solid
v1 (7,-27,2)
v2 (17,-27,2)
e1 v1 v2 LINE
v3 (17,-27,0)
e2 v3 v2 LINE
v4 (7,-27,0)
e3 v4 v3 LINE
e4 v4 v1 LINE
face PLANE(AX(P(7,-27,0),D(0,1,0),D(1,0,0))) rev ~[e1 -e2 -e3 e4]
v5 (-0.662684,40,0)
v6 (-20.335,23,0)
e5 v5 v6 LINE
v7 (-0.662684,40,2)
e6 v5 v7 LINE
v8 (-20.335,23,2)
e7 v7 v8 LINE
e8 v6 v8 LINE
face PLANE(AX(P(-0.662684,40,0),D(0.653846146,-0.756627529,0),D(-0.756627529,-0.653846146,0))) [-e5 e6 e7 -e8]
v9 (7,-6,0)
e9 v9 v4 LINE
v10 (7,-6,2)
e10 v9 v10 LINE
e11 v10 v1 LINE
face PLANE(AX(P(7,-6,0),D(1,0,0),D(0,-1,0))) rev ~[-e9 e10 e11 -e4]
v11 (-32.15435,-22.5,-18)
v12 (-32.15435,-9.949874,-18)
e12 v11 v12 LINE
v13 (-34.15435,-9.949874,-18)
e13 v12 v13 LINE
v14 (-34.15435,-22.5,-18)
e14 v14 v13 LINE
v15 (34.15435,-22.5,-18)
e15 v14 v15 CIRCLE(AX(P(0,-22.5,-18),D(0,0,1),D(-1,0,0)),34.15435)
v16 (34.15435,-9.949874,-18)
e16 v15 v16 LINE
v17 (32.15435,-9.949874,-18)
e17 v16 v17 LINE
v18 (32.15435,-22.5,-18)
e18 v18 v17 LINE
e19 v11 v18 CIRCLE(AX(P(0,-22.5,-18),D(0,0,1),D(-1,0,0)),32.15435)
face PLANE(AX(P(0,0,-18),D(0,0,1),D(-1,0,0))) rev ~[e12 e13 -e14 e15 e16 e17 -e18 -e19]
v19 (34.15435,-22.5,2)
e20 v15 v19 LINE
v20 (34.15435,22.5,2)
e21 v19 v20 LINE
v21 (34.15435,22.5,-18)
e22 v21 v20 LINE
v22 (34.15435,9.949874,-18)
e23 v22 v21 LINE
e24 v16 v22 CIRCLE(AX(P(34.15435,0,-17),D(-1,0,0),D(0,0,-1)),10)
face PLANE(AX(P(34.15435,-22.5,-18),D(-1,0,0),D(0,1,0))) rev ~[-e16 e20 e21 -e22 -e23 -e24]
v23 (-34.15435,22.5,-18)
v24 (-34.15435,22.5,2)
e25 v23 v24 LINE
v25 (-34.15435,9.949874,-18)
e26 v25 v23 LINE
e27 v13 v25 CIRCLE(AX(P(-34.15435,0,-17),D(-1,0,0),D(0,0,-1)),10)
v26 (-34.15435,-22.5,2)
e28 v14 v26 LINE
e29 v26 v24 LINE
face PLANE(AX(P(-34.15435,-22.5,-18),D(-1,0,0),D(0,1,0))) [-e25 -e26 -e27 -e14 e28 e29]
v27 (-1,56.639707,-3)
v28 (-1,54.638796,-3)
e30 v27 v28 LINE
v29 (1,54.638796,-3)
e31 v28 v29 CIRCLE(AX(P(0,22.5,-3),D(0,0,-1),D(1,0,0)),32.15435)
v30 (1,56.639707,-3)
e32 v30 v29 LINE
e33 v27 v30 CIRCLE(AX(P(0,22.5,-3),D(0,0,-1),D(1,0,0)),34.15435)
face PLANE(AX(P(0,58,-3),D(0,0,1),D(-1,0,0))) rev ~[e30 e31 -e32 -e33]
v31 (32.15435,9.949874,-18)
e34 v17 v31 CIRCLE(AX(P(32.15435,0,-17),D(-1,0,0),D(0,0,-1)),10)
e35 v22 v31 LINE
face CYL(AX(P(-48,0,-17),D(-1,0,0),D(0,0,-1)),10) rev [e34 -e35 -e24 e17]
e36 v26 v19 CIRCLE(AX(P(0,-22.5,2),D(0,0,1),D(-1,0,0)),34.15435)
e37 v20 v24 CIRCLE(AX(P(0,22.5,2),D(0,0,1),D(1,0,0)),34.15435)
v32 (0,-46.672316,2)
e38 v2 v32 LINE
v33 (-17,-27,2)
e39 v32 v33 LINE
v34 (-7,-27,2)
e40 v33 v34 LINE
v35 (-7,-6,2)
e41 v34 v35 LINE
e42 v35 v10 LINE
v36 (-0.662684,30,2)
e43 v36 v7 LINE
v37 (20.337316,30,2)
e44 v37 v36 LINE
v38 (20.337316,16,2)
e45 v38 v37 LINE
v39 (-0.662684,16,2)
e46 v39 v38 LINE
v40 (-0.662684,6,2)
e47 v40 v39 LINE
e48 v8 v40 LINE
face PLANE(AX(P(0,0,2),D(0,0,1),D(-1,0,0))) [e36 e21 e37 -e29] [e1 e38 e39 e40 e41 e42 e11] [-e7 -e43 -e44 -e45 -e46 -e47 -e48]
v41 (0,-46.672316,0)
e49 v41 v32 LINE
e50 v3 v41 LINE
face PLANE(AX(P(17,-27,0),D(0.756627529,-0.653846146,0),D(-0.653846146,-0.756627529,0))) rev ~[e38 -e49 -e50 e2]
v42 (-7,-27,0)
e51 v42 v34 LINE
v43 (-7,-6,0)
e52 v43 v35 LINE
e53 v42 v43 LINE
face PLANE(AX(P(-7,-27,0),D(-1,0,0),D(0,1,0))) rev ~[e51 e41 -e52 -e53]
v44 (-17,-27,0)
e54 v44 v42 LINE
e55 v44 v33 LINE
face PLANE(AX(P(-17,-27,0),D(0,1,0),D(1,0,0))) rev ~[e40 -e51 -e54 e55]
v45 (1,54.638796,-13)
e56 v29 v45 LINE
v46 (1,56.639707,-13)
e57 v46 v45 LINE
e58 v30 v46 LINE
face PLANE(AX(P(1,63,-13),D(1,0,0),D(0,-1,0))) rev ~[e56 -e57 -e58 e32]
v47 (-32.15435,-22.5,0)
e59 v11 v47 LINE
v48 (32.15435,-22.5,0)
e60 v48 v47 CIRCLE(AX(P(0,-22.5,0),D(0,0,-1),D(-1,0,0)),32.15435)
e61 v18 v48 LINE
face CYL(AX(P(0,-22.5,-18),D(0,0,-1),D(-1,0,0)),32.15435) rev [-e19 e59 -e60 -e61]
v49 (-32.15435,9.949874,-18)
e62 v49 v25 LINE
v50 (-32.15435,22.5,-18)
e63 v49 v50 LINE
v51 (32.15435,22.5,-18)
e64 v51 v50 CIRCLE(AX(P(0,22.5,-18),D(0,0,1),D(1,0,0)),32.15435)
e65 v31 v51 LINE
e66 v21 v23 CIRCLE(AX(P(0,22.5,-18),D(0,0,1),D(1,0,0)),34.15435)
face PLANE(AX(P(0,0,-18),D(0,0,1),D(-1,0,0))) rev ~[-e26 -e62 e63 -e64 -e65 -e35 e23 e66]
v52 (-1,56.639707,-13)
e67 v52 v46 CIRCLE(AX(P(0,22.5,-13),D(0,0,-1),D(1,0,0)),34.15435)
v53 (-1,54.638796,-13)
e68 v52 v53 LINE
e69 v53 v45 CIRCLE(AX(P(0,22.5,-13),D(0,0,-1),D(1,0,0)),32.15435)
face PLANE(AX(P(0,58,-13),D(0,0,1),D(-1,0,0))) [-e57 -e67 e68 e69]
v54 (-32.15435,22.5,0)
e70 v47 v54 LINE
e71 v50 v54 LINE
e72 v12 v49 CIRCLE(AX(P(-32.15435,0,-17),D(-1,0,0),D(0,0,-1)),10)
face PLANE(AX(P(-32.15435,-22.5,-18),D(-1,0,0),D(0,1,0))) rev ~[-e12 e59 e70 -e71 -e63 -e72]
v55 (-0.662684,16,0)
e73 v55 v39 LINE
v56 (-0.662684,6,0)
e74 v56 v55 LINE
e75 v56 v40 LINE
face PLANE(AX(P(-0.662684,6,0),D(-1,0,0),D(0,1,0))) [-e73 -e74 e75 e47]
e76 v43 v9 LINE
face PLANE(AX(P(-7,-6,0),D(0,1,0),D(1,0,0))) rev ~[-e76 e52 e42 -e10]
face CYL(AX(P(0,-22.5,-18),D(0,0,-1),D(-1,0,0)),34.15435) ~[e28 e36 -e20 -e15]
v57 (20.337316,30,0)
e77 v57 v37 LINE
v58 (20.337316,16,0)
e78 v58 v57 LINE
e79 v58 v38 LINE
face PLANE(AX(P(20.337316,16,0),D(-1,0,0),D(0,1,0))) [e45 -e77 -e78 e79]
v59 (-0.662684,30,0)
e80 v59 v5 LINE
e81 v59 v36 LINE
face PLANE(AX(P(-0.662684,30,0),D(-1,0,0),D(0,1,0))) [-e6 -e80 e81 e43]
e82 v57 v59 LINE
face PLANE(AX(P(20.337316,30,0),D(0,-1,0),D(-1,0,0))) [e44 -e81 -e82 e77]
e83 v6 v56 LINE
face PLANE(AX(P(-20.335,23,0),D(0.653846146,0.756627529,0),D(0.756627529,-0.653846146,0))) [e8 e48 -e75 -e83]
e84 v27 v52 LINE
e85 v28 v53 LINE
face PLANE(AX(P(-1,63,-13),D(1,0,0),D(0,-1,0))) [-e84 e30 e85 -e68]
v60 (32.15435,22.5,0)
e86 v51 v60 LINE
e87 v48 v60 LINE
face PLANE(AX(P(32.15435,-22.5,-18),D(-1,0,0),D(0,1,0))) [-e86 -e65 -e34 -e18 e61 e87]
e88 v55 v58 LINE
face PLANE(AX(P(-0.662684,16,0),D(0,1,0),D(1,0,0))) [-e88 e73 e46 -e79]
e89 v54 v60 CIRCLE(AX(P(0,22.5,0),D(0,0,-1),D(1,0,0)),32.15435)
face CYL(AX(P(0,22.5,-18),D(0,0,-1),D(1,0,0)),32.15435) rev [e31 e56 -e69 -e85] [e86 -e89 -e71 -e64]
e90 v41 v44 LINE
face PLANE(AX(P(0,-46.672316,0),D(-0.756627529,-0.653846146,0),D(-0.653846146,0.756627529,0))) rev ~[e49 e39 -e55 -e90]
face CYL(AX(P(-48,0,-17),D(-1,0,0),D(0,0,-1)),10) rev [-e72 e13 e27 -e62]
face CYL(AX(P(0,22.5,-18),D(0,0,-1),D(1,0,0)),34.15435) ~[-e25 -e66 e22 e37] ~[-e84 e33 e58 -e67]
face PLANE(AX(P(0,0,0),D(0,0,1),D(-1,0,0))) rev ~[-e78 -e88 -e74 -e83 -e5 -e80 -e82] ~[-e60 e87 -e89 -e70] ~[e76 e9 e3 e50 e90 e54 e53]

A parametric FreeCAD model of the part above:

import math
import FreeCAD as App
import Part
import Sketcher

doc = App.newDocument("Part")
body = doc.addObject("PartDesign::Body", "Body")

# Sketch on YZ plane
sketch1 = body.newObject("Sketcher::SketchObject", "Sketch")
sketch1.AttachmentSupport = (doc.getObject("YZ_Plane"), [""])
sketch1.MapMode = "FlatFace"
sketch1.AttachmentOffset = App.Placement(App.Vector(0, 0, -48), App.Rotation())
sketch1.addGeometry(Part.Circle(App.Vector(0, -17, 0), App.Vector(0, 0, 1), 10), False)
sketch1.addConstraint(Sketcher.Constraint("PointOnObject", 0, 3, -2))
sketch1.addConstraint(Sketcher.Constraint("Diameter", 0, 20.0))
sketch1.addConstraint(Sketcher.Constraint("DistanceY", 0, 3, -1, 1, 17.0))
pad1 = body.newObject("PartDesign::Pad", "Pad")
pad1.Profile = sketch1
pad1.Length = 100
body2 = doc.addObject("PartDesign::Body", "Body001")

# Sketch on XY plane
sketch2 = body2.newObject("Sketcher::SketchObject", "Sketch001")
sketch2.AttachmentSupport = (doc.getObject("XY_Plane001"), [""])
sketch2.MapMode = "FlatFace"
sketch2.AttachmentOffset = App.Placement(App.Vector(0, 0, -13), App.Rotation())
sketch2.addGeometry(Part.LineSegment(App.Vector(-1, -53, 0), App.Vector(-1, -63, 0)), False)
sketch2.addGeometry(Part.LineSegment(App.Vector(-1, -63, 0), App.Vector(1, -63, 0)), False)
sketch2.addGeometry(Part.LineSegment(App.Vector(1, -63, 0), App.Vector(1, -53, 0)), False)
sketch2.addGeometry(Part.LineSegment(App.Vector(1, -53, 0), App.Vector(-1, -53, 0)), False)
sketch2.addConstraint(Sketcher.Constraint("Coincident", 0, 2, 1, 1))
sketch2.addConstraint(Sketcher.Constraint("Coincident", 1, 2, 2, 1))
sketch2.addConstraint(Sketcher.Constraint("Coincident", 2, 2, 3, 1))
sketch2.addConstraint(Sketcher.Constraint("Coincident", 3, 2, 0, 1))
sketch2.addConstraint(Sketcher.Constraint("Vertical", 0))
sketch2.addConstraint(Sketcher.Constraint("Horizontal", 1))
sketch2.addConstraint(Sketcher.Constraint("Vertical", 2))
sketch2.addConstraint(Sketcher.Constraint("Horizontal", 3))
sketch2.addConstraint(Sketcher.Constraint("DistanceX", 1, 1, 1, 2, 2.0))
sketch2.addConstraint(Sketcher.Constraint("DistanceY", 0, 2, 0, 1, 10.0))
sketch2.addConstraint(Sketcher.Constraint("DistanceX", 0, 2, -1, 1, 1.0))
sketch2.addConstraint(Sketcher.Constraint("DistanceY", 0, 2, -1, 1, 63.0))
pad2 = body2.newObject("PartDesign::Pad", "Pad001")
pad2.Profile = sketch2
pad2.Length = 10
body3 = doc.addObject("PartDesign::Body", "Body002")

# Sketch on XY plane
sketch3 = body3.newObject("Sketcher::SketchObject", "Sketch002")
sketch3.AttachmentSupport = (doc.getObject("XY_Plane002"), [""])
sketch3.MapMode = "FlatFace"
sketch3.addGeometry(Part.ArcOfCircle(Part.Circle(App.Vector(0, 22.5, 0), App.Vector(0, 0, 1), 32.166162), math.radians(0), math.radians(180)), False)
sketch3.addGeometry(Part.LineSegment(App.Vector(-32.166162, 22.5, 0), App.Vector(-32.166162, -22.5, 0)), False)
sketch3.addGeometry(Part.ArcOfCircle(Part.Circle(App.Vector(0, -22.5, 0), App.Vector(0, 0, 1), 32.166162), math.radians(180), math.radians(360)), False)
sketch3.addGeometry(Part.LineSegment(App.Vector(32.166162, -22.5, 0), App.Vector(32.166162, 22.5, 0)), False)
sketch3.addGeometry(Part.LineSegment(App.Vector(-20.337316, -30, 0), App.Vector(-20.337316, -16, 0)), False)
sketch3.addGeometry(Part.LineSegment(App.Vector(-20.337316, -16, 0), App.Vector(0.662684, -16, 0)), False)
sketch3.addGeometry(Part.LineSegment(App.Vector(0.662684, -16, 0), App.Vector(0.662684, -6, 0)), False)
sketch3.addGeometry(Part.LineSegment(App.Vector(0.662684, -6, 0), App.Vector(20.335, -23, 0)), False)
sketch3.addGeometry(Part.LineSegment(App.Vector(20.335, -23, 0), App.Vector(0.662684, -40, 0)), False)
sketch3.addGeometry(Part.LineSegment(App.Vector(0.662684, -40, 0), App.Vector(0.662684, -30, 0)), False)
sketch3.addGeometry(Part.LineSegment(App.Vector(0.662684, -30, 0), App.Vector(-20.337316, -30, 0)), False)
sketch3.addGeometry(Part.LineSegment(App.Vector(-7, 27, 0), App.Vector(-17, 27, 0)), False)
sketch3.addGeometry(Part.LineSegment(App.Vector(-17, 27, 0), App.Vector(0, 46.672316, 0)), False)
sketch3.addGeometry(Part.LineSegment(App.Vector(0, 46.672316, 0), App.Vector(17, 27, 0)), False)
sketch3.addGeometry(Part.LineSegment(App.Vector(17, 27, 0), App.Vector(7, 27, 0)), False)
sketch3.addGeometry(Part.LineSegment(App.Vector(7, 27, 0), App.Vector(7, 6, 0)), False)
sketch3.addGeometry(Part.LineSegment(App.Vector(7, 6, 0), App.Vector(-7, 6, 0)), False)
sketch3.addGeometry(Part.LineSegment(App.Vector(-7, 6, 0), App.Vector(-7, 27, 0)), False)
sketch3.addConstraint(Sketcher.Constraint("Tangent", 0, 2, 1, 1))
sketch3.addConstraint(Sketcher.Constraint("Tangent", 1, 2, 2, 1))
sketch3.addConstraint(Sketcher.Constraint("Tangent", 2, 2, 3, 1))
sketch3.addConstraint(Sketcher.Constraint("Tangent", 3, 2, 0, 1))
sketch3.addConstraint(Sketcher.Constraint("Coincident", 4, 2, 5, 1))
sketch3.addConstraint(Sketcher.Constraint("Coincident", 5, 2, 6, 1))
sketch3.addConstraint(Sketcher.Constraint("Coincident", 6, 2, 7, 1))
sketch3.addConstraint(Sketcher.Constraint("Coincident", 7, 2, 8, 1))
sketch3.addConstraint(Sketcher.Constraint("Coincident", 8, 2, 9, 1))
sketch3.addConstraint(Sketcher.Constraint("Coincident", 9, 2, 10, 1))
sketch3.addConstraint(Sketcher.Constraint("Coincident", 10, 2, 4, 1))
sketch3.addConstraint(Sketcher.Constraint("Coincident", 11, 2, 12, 1))
sketch3.addConstraint(Sketcher.Constraint("Coincident", 12, 2, 13, 1))
sketch3.addConstraint(Sketcher.Constraint("Coincident", 13, 2, 14, 1))
sketch3.addConstraint(Sketcher.Constraint("Coincident", 14, 2, 15, 1))
sketch3.addConstraint(Sketcher.Constraint("Coincident", 15, 2, 16, 1))
sketch3.addConstraint(Sketcher.Constraint("Coincident", 16, 2, 17, 1))
sketch3.addConstraint(Sketcher.Constraint("Coincident", 17, 2, 11, 1))
sketch3.addConstraint(Sketcher.Constraint("Vertical", 1))
sketch3.addConstraint(Sketcher.Constraint("Vertical", 3))
sketch3.addConstraint(Sketcher.Constraint("Vertical", 4))
sketch3.addConstraint(Sketcher.Constraint("Horizontal", 5))
sketch3.addConstraint(Sketcher.Constraint("Vertical", 6))
sketch3.addConstraint(Sketcher.Constraint("Vertical", 9))
sketch3.addConstraint(Sketcher.Constraint("Horizontal", 10))
sketch3.addConstraint(Sketcher.Constraint("Horizontal", 11))
sketch3.addConstraint(Sketcher.Constraint("Horizontal", 14))
sketch3.addConstraint(Sketcher.Constraint("Vertical", 15))
sketch3.addConstraint(Sketcher.Constraint("Horizontal", 16))
sketch3.addConstraint(Sketcher.Constraint("Vertical", 17))
sketch3.addConstraint(Sketcher.Constraint("Symmetric", 0, 3, 2, 3, -1, 1))
sketch3.addConstraint(Sketcher.Constraint("Symmetric", 11, 2, 13, 2, -2))
sketch3.addConstraint(Sketcher.Constraint("PointOnObject", 12, 2, -2))
sketch3.addConstraint(Sketcher.Constraint("Perpendicular", 7, 12))
sketch3.addConstraint(Sketcher.Constraint("Perpendicular", 8, 13))
sketch3.addConstraint(Sketcher.Constraint("Vertical", 6, 2, 8, 2))
sketch3.addConstraint(Sketcher.Constraint("Equal", 11, 14))
sketch3.addConstraint(Sketcher.Constraint("Equal", 16, 4))
sketch3.addConstraint(Sketcher.Constraint("Equal", 14, 6))
sketch3.addConstraint(Sketcher.Constraint("Equal", 6, 9))
sketch3.addConstraint(Sketcher.Constraint("Equal", 10, 15))
sketch3.addConstraint(Sketcher.Constraint("DistanceX", 5, 1, 5, 2, 21.0))
sketch3.addConstraint(Sketcher.Constraint("DistanceX", 11, 2, 11, 1, 10.0))
sketch3.addConstraint(Sketcher.Constraint("DistanceX", 16, 2, 16, 1, 14.0))
sketch3.addConstraint(Sketcher.Constraint("DistanceY", 1, 2, 1, 1, 45.0))
sketch3.addConstraint(Sketcher.Constraint("Distance", 7, 26.0))
sketch3.addConstraint(Sketcher.Constraint("DistanceY", 4, 2, -1, 1, 16.0))
sketch3.addConstraint(Sketcher.Constraint("DistanceY", -1, 1, 11, 2, 27.0))
sketch3.addConstraint(Sketcher.Constraint("DistanceX", -1, 1, 7, 2, 20.335))
sketch3.addConstraint(Sketcher.Constraint("Radius", 0, 32.166162))
pad3 = body3.newObject("PartDesign::Pad", "Pad002")
pad3.Profile = sketch3
pad3.Length = 2
body4 = doc.addObject("PartDesign::Body", "Body003")

# Sketch on XY plane
sketch4 = body4.newObject("Sketcher::SketchObject", "Sketch003")
sketch4.AttachmentSupport = (doc.getObject("XY_Plane003"), [""])
sketch4.MapMode = "FlatFace"
sketch4.addGeometry(Part.ArcOfCircle(Part.Circle(App.Vector(0, 22.5, 0), App.Vector(0, 0, 1), 34.15435), math.radians(0), math.radians(180)), False)
sketch4.addGeometry(Part.LineSegment(App.Vector(-34.15435, 22.5, 0), App.Vector(-34.15435, -22.5, 0)), False)
sketch4.addGeometry(Part.ArcOfCircle(Part.Circle(App.Vector(0, -22.5, 0), App.Vector(0, 0, 1), 34.15435), math.radians(180), math.radians(360)), False)
sketch4.addGeometry(Part.LineSegment(App.Vector(34.15435, -22.5, 0), App.Vector(34.15435, 22.5, 0)), False)
sketch4.addGeometry(Part.ArcOfCircle(Part.Circle(App.Vector(0, 22.5, 0), App.Vector(0, 0, 1), 32.15435), math.radians(0), math.radians(180)), False)
sketch4.addGeometry(Part.LineSegment(App.Vector(32.15435, 22.5, 0), App.Vector(32.15435, -22.5, 0)), False)
sketch4.addGeometry(Part.ArcOfCircle(Part.Circle(App.Vector(0, -22.5, 0), App.Vector(0, 0, 1), 32.15435), math.radians(180), math.radians(360)), False)
sketch4.addGeometry(Part.LineSegment(App.Vector(-32.15435, -22.5, 0), App.Vector(-32.15435, 22.5, 0)), False)
sketch4.addConstraint(Sketcher.Constraint("Tangent", 0, 2, 1, 1))
sketch4.addConstraint(Sketcher.Constraint("Tangent", 1, 2, 2, 1))
sketch4.addConstraint(Sketcher.Constraint("Tangent", 2, 2, 3, 1))
sketch4.addConstraint(Sketcher.Constraint("Tangent", 3, 2, 0, 1))
sketch4.addConstraint(Sketcher.Constraint("Tangent", 4, 1, 5, 1))
sketch4.addConstraint(Sketcher.Constraint("Tangent", 5, 2, 6, 2))
sketch4.addConstraint(Sketcher.Constraint("Tangent", 6, 1, 7, 1))
sketch4.addConstraint(Sketcher.Constraint("Tangent", 7, 2, 4, 2))
sketch4.addConstraint(Sketcher.Constraint("Vertical", 1))
sketch4.addConstraint(Sketcher.Constraint("Vertical", 3))
sketch4.addConstraint(Sketcher.Constraint("Vertical", 5))
sketch4.addConstraint(Sketcher.Constraint("Vertical", 7))
sketch4.addConstraint(Sketcher.Constraint("Coincident", 4, 3, 0, 3))
sketch4.addConstraint(Sketcher.Constraint("Symmetric", 0, 3, 2, 3, -1, 1))
sketch4.addConstraint(Sketcher.Constraint("Horizontal", 6, 3, 1, 2))
sketch4.addConstraint(Sketcher.Constraint("DistanceY", 1, 2, 1, 1, 45.0))
sketch4.addConstraint(Sketcher.Constraint("DistanceX", 4, 1, 3, 2, 2.0))
sketch4.addConstraint(Sketcher.Constraint("Radius", 0, 34.15435))
pad4 = body4.newObject("PartDesign::Pad", "Pad003")
pad4.Profile = sketch4
pad4.Length = 20
body5 = doc.addObject("PartDesign::Body", "Body004")
doc.recompute()

body4.Placement = App.Placement(App.Vector(0, 0, -18), App.Rotation(App.Vector(0, 0, 1), 0))
boolean = body5.newObject("PartDesign::Boolean", "Boolean")
boolean.Type = "Fuse"
boolean.addObjects([body4])
doc.recompute()

boolean2 = body5.newObject("PartDesign::Boolean", "Boolean001")
boolean2.Type = "Fuse"
boolean2.addObjects([body3])
doc.recompute()

boolean3 = body5.newObject("PartDesign::Boolean", "Boolean002")
boolean3.Type = "Cut"
boolean3.addObjects([body2])
body6 = doc.addObject("PartDesign::Body", "Body005")
doc.recompute()

body5.Placement = App.Placement(App.Vector(0, 0, 0), App.Rotation(App.Vector(0, 0, 1), 180))
boolean4 = body6.newObject("PartDesign::Boolean", "Boolean003")
boolean4.Type = "Fuse"
boolean4.addObjects([body5])
doc.recompute()

boolean5 = body6.newObject("PartDesign::Boolean", "Boolean004")
boolean5.Type = "Cut"
boolean5.addObjects([body])

doc.recompute()
